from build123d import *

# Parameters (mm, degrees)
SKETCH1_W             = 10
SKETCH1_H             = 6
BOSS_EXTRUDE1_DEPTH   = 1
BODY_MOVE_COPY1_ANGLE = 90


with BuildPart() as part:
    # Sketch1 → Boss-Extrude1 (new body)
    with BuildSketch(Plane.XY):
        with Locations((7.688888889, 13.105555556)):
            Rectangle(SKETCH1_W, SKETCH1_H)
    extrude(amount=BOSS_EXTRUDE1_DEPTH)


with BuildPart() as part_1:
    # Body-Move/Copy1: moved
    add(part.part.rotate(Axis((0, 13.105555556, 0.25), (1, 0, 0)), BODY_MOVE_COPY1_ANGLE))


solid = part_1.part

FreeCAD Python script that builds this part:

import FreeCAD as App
import Part
import Sketcher
Q = App.Units.Quantity


def add_polygon(sketch, points):
    """Adds a closed chain of lines whose ends are joined by coincident constraints."""
    first, n = sketch.GeometryCount, len(points)
    for a, b in zip(points, points[1:] + points[:1]):
        sketch.addGeometry(Part.LineSegment(App.Vector(*a, 0), App.Vector(*b, 0)), False)
    for i in range(n):
        sketch.addConstraint(Sketcher.Constraint("Coincident", first + i, 2, first + (i + 1) % n, 1))

doc = App.newDocument("Part")
body = doc.addObject("PartDesign::Body", "Body")

sketch1 = body.newObject("Sketcher::SketchObject", "Sketch")
sketch1.AttachmentSupport = (doc.getObject("XY_Plane"), [""])
sketch1.MapMode = "FlatFace"
add_polygon(sketch1, [(2.688889, 16.105556), (2.688889, 10.105556), (12.688889, 10.105556), (12.688889, 16.105556)])
sketch1.addConstraint([
    Sketcher.Constraint("Vertical", 0),
    Sketcher.Constraint("Horizontal", 1),
    Sketcher.Constraint("Vertical", 2),
    Sketcher.Constraint("Horizontal", 3),
    Sketcher.Constraint("DistanceX", 1, 1, 1, 2, Q("10 mm")),
    Sketcher.Constraint("DistanceY", 0, 2, 0, 1, Q("6 mm")),
    Sketcher.Constraint("DistanceX", -1, 1, 0, 2, Q("2.688889 mm")),
    Sketcher.Constraint("DistanceY", -1, 1, 0, 2, Q("10.105556 mm")),
])
pad1 = body.newObject("PartDesign::Pad", "Pad")
pad1.Profile = sketch1
pad1.Length = 1
body2 = doc.addObject("PartDesign::Body", "Body001")
doc.recompute()

body.Placement = App.Placement(App.Vector(0, 13.355556, -12.855556), App.Rotation(App.Vector(1, 0, 0), 90))
boolean = body2.newObject("PartDesign::Boolean", "Boolean")
boolean.Type = "Fuse"
boolean.addObjects([body])

doc.recompute()
